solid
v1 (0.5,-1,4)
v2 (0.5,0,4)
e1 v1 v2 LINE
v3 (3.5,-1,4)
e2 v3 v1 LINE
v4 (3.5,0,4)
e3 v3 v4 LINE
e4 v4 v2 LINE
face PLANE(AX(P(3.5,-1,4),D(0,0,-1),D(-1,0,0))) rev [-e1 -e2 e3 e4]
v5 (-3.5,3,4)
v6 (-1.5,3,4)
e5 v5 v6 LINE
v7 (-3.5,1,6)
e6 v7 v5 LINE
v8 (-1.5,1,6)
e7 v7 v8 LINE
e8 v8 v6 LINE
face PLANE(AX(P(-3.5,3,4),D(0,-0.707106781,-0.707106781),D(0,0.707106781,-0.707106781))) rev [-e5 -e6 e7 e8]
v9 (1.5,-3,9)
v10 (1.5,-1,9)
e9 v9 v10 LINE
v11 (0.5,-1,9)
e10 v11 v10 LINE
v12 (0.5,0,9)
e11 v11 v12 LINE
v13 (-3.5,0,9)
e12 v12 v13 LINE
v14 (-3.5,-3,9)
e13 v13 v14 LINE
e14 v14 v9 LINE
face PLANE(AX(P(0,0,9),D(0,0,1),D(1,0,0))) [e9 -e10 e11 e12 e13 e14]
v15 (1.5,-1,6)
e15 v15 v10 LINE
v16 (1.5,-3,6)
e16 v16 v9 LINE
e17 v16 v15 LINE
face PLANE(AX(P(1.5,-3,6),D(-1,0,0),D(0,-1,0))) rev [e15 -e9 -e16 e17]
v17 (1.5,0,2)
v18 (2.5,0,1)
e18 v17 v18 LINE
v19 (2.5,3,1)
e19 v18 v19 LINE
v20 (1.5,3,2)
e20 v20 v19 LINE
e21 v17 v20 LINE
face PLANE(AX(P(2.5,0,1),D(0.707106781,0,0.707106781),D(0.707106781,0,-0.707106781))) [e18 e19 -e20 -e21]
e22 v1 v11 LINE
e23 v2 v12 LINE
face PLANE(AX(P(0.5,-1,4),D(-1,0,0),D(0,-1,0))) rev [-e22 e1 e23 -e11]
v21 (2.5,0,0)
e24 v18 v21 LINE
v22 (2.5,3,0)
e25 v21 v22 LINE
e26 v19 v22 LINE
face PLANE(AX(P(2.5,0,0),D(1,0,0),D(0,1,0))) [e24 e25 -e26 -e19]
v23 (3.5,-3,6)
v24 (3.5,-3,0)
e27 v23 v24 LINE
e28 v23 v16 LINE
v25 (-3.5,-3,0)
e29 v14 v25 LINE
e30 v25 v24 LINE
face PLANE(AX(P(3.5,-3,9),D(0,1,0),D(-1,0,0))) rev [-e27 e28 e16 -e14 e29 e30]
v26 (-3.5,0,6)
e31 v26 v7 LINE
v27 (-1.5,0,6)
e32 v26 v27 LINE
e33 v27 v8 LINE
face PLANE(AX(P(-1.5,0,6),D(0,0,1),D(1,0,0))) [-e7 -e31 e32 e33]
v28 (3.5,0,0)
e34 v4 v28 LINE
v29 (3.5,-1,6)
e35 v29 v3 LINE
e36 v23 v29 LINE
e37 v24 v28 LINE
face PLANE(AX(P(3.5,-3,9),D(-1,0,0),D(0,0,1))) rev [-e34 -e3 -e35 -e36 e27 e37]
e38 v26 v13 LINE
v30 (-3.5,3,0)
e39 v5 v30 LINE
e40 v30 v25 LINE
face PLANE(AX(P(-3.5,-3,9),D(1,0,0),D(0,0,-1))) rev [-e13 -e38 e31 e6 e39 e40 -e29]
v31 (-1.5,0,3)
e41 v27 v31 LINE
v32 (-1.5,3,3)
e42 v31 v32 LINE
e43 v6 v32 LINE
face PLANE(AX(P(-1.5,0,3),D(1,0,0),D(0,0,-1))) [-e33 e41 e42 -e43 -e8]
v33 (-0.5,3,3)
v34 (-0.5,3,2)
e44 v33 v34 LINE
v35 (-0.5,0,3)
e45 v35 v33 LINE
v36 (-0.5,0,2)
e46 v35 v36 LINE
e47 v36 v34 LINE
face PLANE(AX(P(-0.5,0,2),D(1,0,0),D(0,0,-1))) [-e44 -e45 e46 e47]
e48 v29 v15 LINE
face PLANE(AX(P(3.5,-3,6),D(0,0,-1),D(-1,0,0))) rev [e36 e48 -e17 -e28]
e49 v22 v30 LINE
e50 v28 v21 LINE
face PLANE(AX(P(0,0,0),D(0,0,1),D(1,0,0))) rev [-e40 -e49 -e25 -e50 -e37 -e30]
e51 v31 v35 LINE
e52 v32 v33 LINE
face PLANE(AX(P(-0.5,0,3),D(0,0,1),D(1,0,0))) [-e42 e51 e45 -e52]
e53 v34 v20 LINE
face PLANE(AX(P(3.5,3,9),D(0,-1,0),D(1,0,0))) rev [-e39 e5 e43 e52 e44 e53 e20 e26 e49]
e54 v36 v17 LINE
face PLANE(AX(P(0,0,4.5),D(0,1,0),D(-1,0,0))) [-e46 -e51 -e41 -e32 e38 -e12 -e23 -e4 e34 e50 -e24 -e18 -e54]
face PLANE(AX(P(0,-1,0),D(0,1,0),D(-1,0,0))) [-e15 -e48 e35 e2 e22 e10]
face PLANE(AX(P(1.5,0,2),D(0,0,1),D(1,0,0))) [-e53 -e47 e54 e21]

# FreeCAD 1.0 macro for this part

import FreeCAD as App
import Part
import Sketcher

V = App.Vector

doc = App.newDocument("Part")
body = doc.addObject("PartDesign::Body", "Body")

sketch1 = body.newObject("Sketcher::SketchObject", "Sketch")
sketch1.AttachmentSupport = (doc.getObject("XY_Plane"), [""])
sketch1.MapMode = "FlatFace"
sketch1.addGeometry(Part.LineSegment(V(-4, 3, 0), V(-4, -3, 0)), False)
sketch1.addGeometry(Part.LineSegment(V(-4, -3, 0), V(4, -3, 0)), False)
sketch1.addGeometry(Part.LineSegment(V(4, -3, 0), V(4, 3, 0)), False)
sketch1.addGeometry(Part.LineSegment(V(4, 3, 0), V(-4, 3, 0)), False)
sketch1.addConstraint(Sketcher.Constraint("Coincident", 0, 2, 1, 1))
sketch1.addConstraint(Sketcher.Constraint("Coincident", 1, 2, 2, 1))
sketch1.addConstraint(Sketcher.Constraint("Coincident", 2, 2, 3, 1))
sketch1.addConstraint(Sketcher.Constraint("Coincident", 3, 2, 0, 1))
sketch1.addConstraint(Sketcher.Constraint("Vertical", 0))
sketch1.addConstraint(Sketcher.Constraint("Horizontal", 1))
sketch1.addConstraint(Sketcher.Constraint("Vertical", 2))
sketch1.addConstraint(Sketcher.Constraint("Horizontal", 3))
sketch1.addConstraint(Sketcher.Constraint("Symmetric", 0, 2, 2, 2, -1, 1))
sketch1.addConstraint(Sketcher.Constraint("DistanceX", 1, 1, 1, 2, 7.0))
sketch1.addConstraint(Sketcher.Constraint("DistanceY", 0, 2, 0, 1, 6.0))
pad1 = body.newObject("PartDesign::Pad", "Pad")
pad1.Profile = sketch1
pad1.Length = 9

sketch2 = body.newObject("Sketcher::SketchObject", "Sketch001")
sketch2.AttachmentSupport = (doc.getObject("XZ_Plane"), [""])
sketch2.MapMode = "FlatFace"
sketch2.AttachmentOffset = App.Placement(V(0, 0, -3), App.Rotation())
sketch2.addGeometry(Part.LineSegment(V(-5.8, -2.3, 0), V(-5.8, 11.3, 0)), False)
sketch2.addGeometry(Part.LineSegment(V(-5.8, 11.3, 0), V(5.8, 11.3, 0)), False)
sketch2.addGeometry(Part.LineSegment(V(5.8, 11.3, 0), V(5.8, -2.3, 0)), False)
sketch2.addGeometry(Part.LineSegment(V(5.8, -2.3, 0), V(-5.8, -2.3, 0)), False)
sketch2.addGeometry(Part.LineSegment(V(-3.5, 0, 0), V(2.5, 0, 0)), False)
sketch2.addGeometry(Part.LineSegment(V(2.5, 0, 0), V(2.5, 1, 0)), False)
sketch2.addGeometry(Part.LineSegment(V(2.5, 1, 0), V(1.5, 2, 0)), False)
sketch2.addGeometry(Part.LineSegment(V(1.5, 2, 0), V(-0.5, 2, 0)), False)
sketch2.addGeometry(Part.LineSegment(V(-0.5, 2, 0), V(-0.5, 3, 0)), False)
sketch2.addGeometry(Part.LineSegment(V(-0.5, 3, 0), V(-1.5, 3, 0)), False)
sketch2.addGeometry(Part.LineSegment(V(-1.5, 3, 0), V(-1.5, 6, 0)), False)
sketch2.addGeometry(Part.LineSegment(V(-1.5, 6, 0), V(-3.5, 6, 0)), False)
sketch2.addGeometry(Part.LineSegment(V(-3.5, 6, 0), V(-3.5, 0, 0)), False)
sketch2.addConstraint(Sketcher.Constraint("Coincident", 0, 2, 1, 1))
sketch2.addConstraint(Sketcher.Constraint("Coincident", 1, 2, 2, 1))
sketch2.addConstraint(Sketcher.Constraint("Coincident", 2, 2, 3, 1))
sketch2.addConstraint(Sketcher.Constraint("Coincident", 3, 2, 0, 1))
sketch2.addConstraint(Sketcher.Constraint("Coincident", 4, 2, 5, 1))
sketch2.addConstraint(Sketcher.Constraint("Coincident", 5, 2, 6, 1))
sketch2.addConstraint(Sketcher.Constraint("Coincident", 6, 2, 7, 1))
sketch2.addConstraint(Sketcher.Constraint("Coincident", 7, 2, 8, 1))
sketch2.addConstraint(Sketcher.Constraint("Coincident", 8, 2, 9, 1))
sketch2.addConstraint(Sketcher.Constraint("Coincident", 9, 2, 10, 1))
sketch2.addConstraint(Sketcher.Constraint("Coincident", 10, 2, 11, 1))
sketch2.addConstraint(Sketcher.Constraint("Coincident", 11, 2, 12, 1))
sketch2.addConstraint(Sketcher.Constraint("Coincident", 12, 2, 4, 1))
sketch2.addConstraint(Sketcher.Constraint("Vertical", 0))
sketch2.addConstraint(Sketcher.Constraint("Horizontal", 1))
sketch2.addConstraint(Sketcher.Constraint("Vertical", 2))
sketch2.addConstraint(Sketcher.Constraint("Horizontal", 3))
sketch2.addConstraint(Sketcher.Constraint("Horizontal", 4))
sketch2.addConstraint(Sketcher.Constraint("Vertical", 5))
sketch2.addConstraint(Sketcher.Constraint("Horizontal", 7))
sketch2.addConstraint(Sketcher.Constraint("Vertical", 8))
sketch2.addConstraint(Sketcher.Constraint("Horizontal", 9))
sketch2.addConstraint(Sketcher.Constraint("Vertical", 10))
sketch2.addConstraint(Sketcher.Constraint("Horizontal", 11))
sketch2.addConstraint(Sketcher.Constraint("Vertical", 12))
sketch2.addConstraint(Sketcher.Constraint("PointOnObject", 4, 2, -1))
sketch2.addConstraint(Sketcher.Constraint("Equal", 7, 11))
sketch2.addConstraint(Sketcher.Constraint("Equal", 9, 5))
sketch2.addConstraint(Sketcher.Constraint("Equal", 5, 8))
sketch2.addConstraint(Sketcher.Constraint("Equal", 4, 12))
sketch2.addConstraint(Sketcher.Constraint("DistanceX", 4, 1, 4, 2, 6.0))
sketch2.addConstraint(Sketcher.Constraint("DistanceX", 7, 2, 7, 1, 2.0))
sketch2.addConstraint(Sketcher.Constraint("DistanceX", 9, 2, 9, 1, 1.0))
sketch2.addConstraint(Sketcher.Constraint("DistanceY", 10, 1, 10, 2, 3.0))
sketch2.addConstraint(Sketcher.Constraint("DistanceX", -1, 1, 4, 2, 2.5))
sketch2.addConstraint(Sketcher.Constraint("DistanceX", 1, 1, 1, 2, 11.576))
sketch2.addConstraint(Sketcher.Constraint("DistanceY", 0, 1, 0, 2, 13.576))
sketch2.addConstraint(Sketcher.Constraint("DistanceX", 0, 2, -1, 1, 5.788))
sketch2.addConstraint(Sketcher.Constraint("DistanceY", -1, 1, 0, 2, 11.288))
pocket1 = body.newObject("PartDesign::Pocket", "Pocket")
pocket1.Profile = sketch2
pocket1.Length = 3
pocket1.Reversed = True

sketch3 = body.newObject("Sketcher::SketchObject", "Sketch002")
sketch3.AttachmentSupport = (doc.getObject("XZ_Plane"), [""])
sketch3.MapMode = "FlatFace"
sketch3.addGeometry(Part.LineSegment(V(0.5, 4, 0), V(0.5, 9, 0)), False)
sketch3.addGeometry(Part.LineSegment(V(0.5, 9, 0), V(3.5, 9, 0)), False)
sketch3.addGeometry(Part.LineSegment(V(3.5, 9, 0), V(3.5, 4, 0)), False)
sketch3.addGeometry(Part.LineSegment(V(3.5, 4, 0), V(0.5, 4, 0)), False)
sketch3.addConstraint(Sketcher.Constraint("Coincident", 0, 2, 1, 1))
sketch3.addConstraint(Sketcher.Constraint("Coincident", 1, 2, 2, 1))
sketch3.addConstraint(Sketcher.Constraint("Coincident", 2, 2, 3, 1))
sketch3.addConstraint(Sketcher.Constraint("Coincident", 3, 2, 0, 1))
sketch3.addConstraint(Sketcher.Constraint("Vertical", 0))
sketch3.addConstraint(Sketcher.Constraint("Horizontal", 1))
sketch3.addConstraint(Sketcher.Constraint("Vertical", 2))
sketch3.addConstraint(Sketcher.Constraint("Horizontal", 3))
sketch3.addConstraint(Sketcher.Constraint("DistanceX", 1, 1, 1, 2, 3.0))
sketch3.addConstraint(Sketcher.Constraint("DistanceY", 0, 1, 0, 2, 5.0))
sketch3.addConstraint(Sketcher.Constraint("DistanceY", -1, 1, 0, 2, 9.0))
sketch3.addConstraint(Sketcher.Constraint("DistanceX", -1, 1, 0, 2, 0.5))
pocket2 = body.newObject("PartDesign::Pocket", "Pocket001")
pocket2.Profile = sketch3
pocket2.Length = 1
pocket2.Reversed = True

sketch4 = body.newObject("Sketcher::SketchObject", "Sketch003")
sketch4.AttachmentSupport = (doc.getObject("XZ_Plane"), [""])
sketch4.MapMode = "FlatFace"
sketch4.AttachmentOffset = App.Placement(V(0, 0, 1), App.Rotation())
sketch4.addGeometry(Part.LineSegment(V(1.5, 6, 0), V(1.5, 9, 0)), False)
sketch4.addGeometry(Part.LineSegment(V(1.5, 9, 0), V(3.5, 9, 0)), False)
sketch4.addGeometry(Part.LineSegment(V(3.5, 9, 0), V(3.5, 6, 0)), False)
sketch4.addGeometry(Part.LineSegment(V(3.5, 6, 0), V(1.5, 6, 0)), False)
sketch4.addConstraint(Sketcher.Constraint("Coincident", 0, 2, 1, 1))
sketch4.addConstraint(Sketcher.Constraint("Coincident", 1, 2, 2, 1))
sketch4.addConstraint(Sketcher.Constraint("Coincident", 2, 2, 3, 1))
sketch4.addConstraint(Sketcher.Constraint("Coincident", 3, 2, 0, 1))
sketch4.addConstraint(Sketcher.Constraint("Vertical", 0))
sketch4.addConstraint(Sketcher.Constraint("Horizontal", 1))
sketch4.addConstraint(Sketcher.Constraint("Vertical", 2))
sketch4.addConstraint(Sketcher.Constraint("Horizontal", 3))
sketch4.addConstraint(Sketcher.Constraint("DistanceX", 1, 1, 1, 2, 2.0))
sketch4.addConstraint(Sketcher.Constraint("DistanceY", 0, 1, 0, 2, 3.0))
sketch4.addConstraint(Sketcher.Constraint("DistanceY", -1, 1, 0, 2, 9.0))
sketch4.addConstraint(Sketcher.Constraint("DistanceX", -1, 1, 0, 2, 1.5))
pocket3 = body.newObject("PartDesign::Pocket", "Pocket002")
pocket3.Profile = sketch4
pocket3.Length = 2
pocket3.Reversed = True

sketch5 = body.newObject("Sketcher::SketchObject", "Sketch004")
sketch5.AttachmentSupport = (doc.getObject("YZ_Plane"), [""])
sketch5.MapMode = "FlatFace"
sketch5.AttachmentOffset = App.Placement(V(0, 0, -1.5), App.Rotation())
sketch5.addGeometry(Part.LineSegment(V(1, 6, 0), V(3, 4, 0)), False)
sketch5.addGeometry(Part.LineSegment(V(3, 4, 0), V(3, 6, 0)), False)
sketch5.addGeometry(Part.LineSegment(V(3, 6, 0), V(1, 6, 0)), False)
sketch5.addConstraint(Sketcher.Constraint("Coincident", 0, 2, 1, 1))
sketch5.addConstraint(Sketcher.Constraint("Coincident", 1, 2, 2, 1))
sketch5.addConstraint(Sketcher.Constraint("Coincident", 2, 2, 0, 1))
sketch5.addConstraint(Sketcher.Constraint("Vertical", 1))
sketch5.addConstraint(Sketcher.Constraint("Horizontal", 2))
sketch5.addConstraint(Sketcher.Constraint("Equal", 2, 1))
sketch5.addConstraint(Sketcher.Constraint("DistanceX", 2, 2, 2, 1, 2.0))
sketch5.addConstraint(Sketcher.Constraint("DistanceX", -1, 1, 0, 2, 3.0))
sketch5.addConstraint(Sketcher.Constraint("DistanceY", -1, 1, 0, 2, 4.0))
pocket4 = body.newObject("PartDesign::Pocket", "Pocket003")
pocket4.Profile = sketch5
pocket4.Length = 2

doc.recompute()
